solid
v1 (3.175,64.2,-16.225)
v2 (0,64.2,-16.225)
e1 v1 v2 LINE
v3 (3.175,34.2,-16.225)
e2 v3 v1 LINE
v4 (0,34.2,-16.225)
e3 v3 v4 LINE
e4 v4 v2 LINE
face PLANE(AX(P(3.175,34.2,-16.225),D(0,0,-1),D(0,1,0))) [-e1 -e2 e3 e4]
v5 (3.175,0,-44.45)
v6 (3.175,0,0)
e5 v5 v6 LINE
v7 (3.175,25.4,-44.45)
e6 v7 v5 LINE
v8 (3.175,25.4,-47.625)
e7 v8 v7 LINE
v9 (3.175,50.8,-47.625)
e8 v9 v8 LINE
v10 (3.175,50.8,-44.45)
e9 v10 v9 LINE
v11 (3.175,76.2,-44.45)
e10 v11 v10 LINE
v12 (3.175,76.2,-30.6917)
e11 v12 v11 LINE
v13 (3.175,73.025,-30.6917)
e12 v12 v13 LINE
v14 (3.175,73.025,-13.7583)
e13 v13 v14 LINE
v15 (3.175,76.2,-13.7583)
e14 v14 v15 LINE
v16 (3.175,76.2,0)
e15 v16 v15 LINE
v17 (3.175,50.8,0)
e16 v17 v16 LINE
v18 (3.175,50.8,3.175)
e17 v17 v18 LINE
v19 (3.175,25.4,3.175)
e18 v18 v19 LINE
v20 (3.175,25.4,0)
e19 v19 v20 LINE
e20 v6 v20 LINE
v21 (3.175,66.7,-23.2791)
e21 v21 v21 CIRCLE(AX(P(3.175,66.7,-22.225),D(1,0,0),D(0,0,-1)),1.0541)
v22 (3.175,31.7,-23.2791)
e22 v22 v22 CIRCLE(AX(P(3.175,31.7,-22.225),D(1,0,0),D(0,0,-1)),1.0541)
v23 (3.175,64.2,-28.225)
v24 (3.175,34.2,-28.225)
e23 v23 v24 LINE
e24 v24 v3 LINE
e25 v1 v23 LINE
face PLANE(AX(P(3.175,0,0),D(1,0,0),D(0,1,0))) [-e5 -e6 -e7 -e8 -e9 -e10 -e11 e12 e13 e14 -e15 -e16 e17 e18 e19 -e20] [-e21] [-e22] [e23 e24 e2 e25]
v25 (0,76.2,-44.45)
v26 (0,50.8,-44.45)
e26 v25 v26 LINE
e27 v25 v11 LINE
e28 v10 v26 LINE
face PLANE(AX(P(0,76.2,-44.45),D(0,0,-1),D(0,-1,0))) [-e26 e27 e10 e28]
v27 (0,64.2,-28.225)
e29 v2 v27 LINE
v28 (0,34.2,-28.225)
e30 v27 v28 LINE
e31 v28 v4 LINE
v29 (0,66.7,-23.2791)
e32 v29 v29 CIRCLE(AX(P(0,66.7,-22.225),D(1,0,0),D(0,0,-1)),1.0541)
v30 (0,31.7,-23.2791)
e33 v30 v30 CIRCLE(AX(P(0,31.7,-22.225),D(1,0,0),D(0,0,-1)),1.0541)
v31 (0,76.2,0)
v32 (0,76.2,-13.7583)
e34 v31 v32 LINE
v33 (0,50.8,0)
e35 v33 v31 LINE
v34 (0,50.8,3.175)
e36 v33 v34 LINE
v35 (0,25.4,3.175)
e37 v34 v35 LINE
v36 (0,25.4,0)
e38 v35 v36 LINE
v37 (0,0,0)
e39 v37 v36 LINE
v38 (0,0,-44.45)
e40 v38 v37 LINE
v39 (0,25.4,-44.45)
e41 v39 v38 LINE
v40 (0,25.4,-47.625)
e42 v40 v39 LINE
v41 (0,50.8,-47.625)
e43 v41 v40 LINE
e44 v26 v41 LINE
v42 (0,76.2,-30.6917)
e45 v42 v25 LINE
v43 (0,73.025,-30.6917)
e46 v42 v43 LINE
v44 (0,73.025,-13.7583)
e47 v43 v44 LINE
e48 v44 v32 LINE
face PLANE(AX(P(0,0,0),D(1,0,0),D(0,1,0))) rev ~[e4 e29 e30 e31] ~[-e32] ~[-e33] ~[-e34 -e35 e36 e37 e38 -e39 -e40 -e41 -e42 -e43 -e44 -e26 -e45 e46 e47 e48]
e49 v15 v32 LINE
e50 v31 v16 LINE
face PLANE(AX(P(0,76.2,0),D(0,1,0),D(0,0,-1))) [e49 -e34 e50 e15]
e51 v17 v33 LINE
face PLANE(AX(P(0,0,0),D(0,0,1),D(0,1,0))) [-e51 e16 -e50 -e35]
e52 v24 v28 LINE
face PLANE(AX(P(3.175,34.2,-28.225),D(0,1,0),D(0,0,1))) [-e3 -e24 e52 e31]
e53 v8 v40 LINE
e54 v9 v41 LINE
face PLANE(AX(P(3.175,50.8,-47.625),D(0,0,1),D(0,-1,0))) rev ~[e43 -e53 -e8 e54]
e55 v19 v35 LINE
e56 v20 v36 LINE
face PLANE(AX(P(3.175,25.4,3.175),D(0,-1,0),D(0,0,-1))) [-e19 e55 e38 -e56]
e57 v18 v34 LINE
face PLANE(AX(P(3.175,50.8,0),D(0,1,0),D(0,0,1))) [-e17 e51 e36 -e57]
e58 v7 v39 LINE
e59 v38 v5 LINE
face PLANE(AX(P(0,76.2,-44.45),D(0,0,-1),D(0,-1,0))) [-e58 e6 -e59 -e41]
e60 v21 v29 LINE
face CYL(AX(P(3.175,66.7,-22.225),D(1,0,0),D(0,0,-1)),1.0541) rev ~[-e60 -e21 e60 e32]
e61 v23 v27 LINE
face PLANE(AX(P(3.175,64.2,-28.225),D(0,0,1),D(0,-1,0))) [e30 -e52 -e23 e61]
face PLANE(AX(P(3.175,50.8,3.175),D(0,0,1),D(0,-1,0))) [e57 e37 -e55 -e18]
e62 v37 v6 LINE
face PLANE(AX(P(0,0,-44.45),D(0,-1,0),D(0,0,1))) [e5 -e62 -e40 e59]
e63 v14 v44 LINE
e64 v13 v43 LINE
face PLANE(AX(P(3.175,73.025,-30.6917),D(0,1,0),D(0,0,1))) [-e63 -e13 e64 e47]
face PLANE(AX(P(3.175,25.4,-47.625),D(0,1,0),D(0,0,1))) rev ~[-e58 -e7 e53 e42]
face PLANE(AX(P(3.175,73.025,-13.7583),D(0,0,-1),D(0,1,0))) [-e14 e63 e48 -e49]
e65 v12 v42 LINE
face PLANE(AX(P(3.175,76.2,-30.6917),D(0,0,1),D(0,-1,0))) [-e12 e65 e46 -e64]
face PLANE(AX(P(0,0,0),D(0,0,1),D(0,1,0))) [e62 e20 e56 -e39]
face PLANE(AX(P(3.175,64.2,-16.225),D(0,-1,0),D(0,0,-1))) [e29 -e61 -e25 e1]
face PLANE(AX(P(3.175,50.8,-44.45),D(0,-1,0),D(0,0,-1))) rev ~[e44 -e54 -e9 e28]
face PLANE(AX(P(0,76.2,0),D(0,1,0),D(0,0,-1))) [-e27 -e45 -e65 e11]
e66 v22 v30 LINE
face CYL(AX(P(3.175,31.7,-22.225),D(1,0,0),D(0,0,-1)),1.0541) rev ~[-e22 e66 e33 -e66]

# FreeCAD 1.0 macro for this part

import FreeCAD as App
import Part
import Sketcher
Q = App.Units.Quantity


def add_polygon(sketch, points):
    """Adds a closed chain of lines whose ends are joined by coincident constraints."""
    first, n = sketch.GeometryCount, len(points)
    for a, b in zip(points, points[1:] + points[:1]):
        sketch.addGeometry(Part.LineSegment(App.Vector(*a, 0), App.Vector(*b, 0)), False)
    for i in range(n):
        sketch.addConstraint(Sketcher.Constraint("Coincident", first + i, 2, first + (i + 1) % n, 1))

doc = App.newDocument("Part")
params = doc.addObject("Spreadsheet::Sheet", "Params")
for row, (alias, value) in enumerate([
    ("sketch1_width", "3 in"),
    ("sketch1_height", "1.75 in"),
    ("pad1_length", "0.125 in"),
    ("sketch2_width", "0.125 in"),
    ("pocket1_length", "0.125 in"),
    ("sketch3_width", "1 in"),
    ("sketch3_height", "0.125 in"),
    ("pad2_length", "0.125 in"),
    ("sketch4_diameter", "0.083 in"),
    ("pocket2_length", "0.125 in"),
], start=1):
    params.set(f"A{row}", alias)
    params.set(f"B{row}", "=" + value)
    params.setAlias(f"B{row}", alias)

body = doc.addObject("PartDesign::Body", "Body")

# Sketch on YZ plane
sketch1 = body.newObject("Sketcher::SketchObject", "Sketch")
sketch1.AttachmentSupport = (doc.getObject("YZ_Plane"), [""])
sketch1.MapMode = "FlatFace"
add_polygon(sketch1, [(76, 0), (0, 0), (0, -44), (76, -44)])  # lines 0-3
sketch1.addConstraint([
    Sketcher.Constraint("Horizontal", 0),
    Sketcher.Constraint("Vertical", 1),
    Sketcher.Constraint("Horizontal", 2),
    Sketcher.Constraint("Vertical", 3),
    Sketcher.Constraint("Coincident", 0, 2, -1, 1),
    Sketcher.Constraint("DistanceX", 0, 2, 0, 1, Q("3 in")),
    Sketcher.Constraint("DistanceY", 1, 2, 1, 1, Q("1.75 in")),
])
sketch1.setExpression("Constraints[9]", "Params.sketch1_width")
sketch1.setExpression("Constraints[10]", "Params.sketch1_height")
pad1 = body.newObject("PartDesign::Pad", "Pad")
pad1.Profile = sketch1
pad1.setExpression("Length", "Params.pad1_length")

# Sketch on YZ plane
sketch2 = body.newObject("Sketcher::SketchObject", "Sketch001")
sketch2.AttachmentSupport = (doc.getObject("YZ_Plane"), [""])
sketch2.MapMode = "FlatFace"
sketch2.AttachmentOffset = App.Placement(App.Vector(0, 0, 0.125 * 25.4), App.Rotation())
add_polygon(sketch2, [(73, -30.7), (76.2, -30.7), (76.2, -13.8), (73, -13.8)])  # lines 0-3
sketch2.addConstraint([
    Sketcher.Constraint("Horizontal", 0),
    Sketcher.Constraint("Vertical", 1),
    Sketcher.Constraint("Horizontal", 2),
    Sketcher.Constraint("Vertical", 3),
    Sketcher.Constraint("DistanceX", 0, 1, 0, 2, Q("0.125 in")),
    Sketcher.Constraint("DistanceX", -1, 1, 0, 2, Q("3 in")),
    Sketcher.Constraint("DistanceY", 1, 1, 1, 2, Q("16.9334 mm")),
    Sketcher.Constraint("DistanceY", 1, 2, -1, 1, Q("13.7583 mm")),
])
sketch2.setExpression("Constraints[8]", "Params.sketch2_width")
pocket1 = body.newObject("PartDesign::Pocket", "Pocket")
pocket1.Profile = sketch2
pocket1.setExpression("Length", "Params.pocket1_length")

# Sketch on YZ plane
sketch3 = body.newObject("Sketcher::SketchObject", "Sketch002")
sketch3.AttachmentSupport = (doc.getObject("YZ_Plane"), [""])
sketch3.MapMode = "FlatFace"
sketch3.AttachmentOffset = App.Placement(App.Vector(0, 0, 0.125 * 25.4), App.Rotation())
add_polygon(sketch3, [(50.8, -44.5), (25.4, -44.5), (25.4, -47.6), (50.8, -47.6)])  # lines 0-3
add_polygon(sketch3, [(25.4, 0), (50.8, 0), (50.8, 3.2), (25.4, 3.2)])  # lines 4-7
sketch3.addConstraint([
    Sketcher.Constraint("Horizontal", 0),
    Sketcher.Constraint("Vertical", 1),
    Sketcher.Constraint("Horizontal", 2),
    Sketcher.Constraint("Vertical", 3),
    Sketcher.Constraint("Horizontal", 4),
    Sketcher.Constraint("Vertical", 5),
    Sketcher.Constraint("Horizontal", 6),
    Sketcher.Constraint("Vertical", 7),
    Sketcher.Constraint("PointOnObject", 4, 2, -1),
    Sketcher.Constraint("Vertical", 3, 2, 4, 2),
    Sketcher.Constraint("Vertical", 1, 2, 6, 2),
    Sketcher.Constraint("Equal", 3, 5),
    Sketcher.Constraint("DistanceX", 0, 2, 0, 1, Q("1 in")),
    Sketcher.Constraint("DistanceX", -1, 1, 0, 2, Q("1 in")),
    Sketcher.Constraint("DistanceY", 1, 2, 1, 1, Q("0.125 in")),
    Sketcher.Constraint("DistanceY", 2, 2, 5, 2, Q("2 in")),
])
sketch3.setExpression("Constraints[20]", "Params.sketch3_width")
sketch3.setExpression("Constraints[22]", "Params.sketch3_height")
pad2 = body.newObject("PartDesign::Pad", "Pad001")
pad2.Profile = sketch3
pad2.setExpression("Length", "Params.pad2_length")
pad2.Reversed = True

# Sketch on YZ plane
sketch4 = body.newObject("Sketcher::SketchObject", "Sketch003")
sketch4.AttachmentSupport = (doc.getObject("YZ_Plane"), [""])
sketch4.MapMode = "FlatFace"
sketch4.AttachmentOffset = App.Placement(App.Vector(0, 0, 0.125 * 25.4), App.Rotation())
add_polygon(sketch4, [(64.2, -28.2), (64.2, -16.2), (34.2, -16.2), (34.2, -28.2)])  # lines 0-3
sketch4.addGeometry(Part.Circle(App.Vector(66.7, -22.2, 0), App.Vector(0, 0, 1), 1.1), False)  # 4
sketch4.addGeometry(Part.Circle(App.Vector(31.7, -22.2, 0), App.Vector(0, 0, 1), 1.1), False)  # 5
sketch4.addConstraint([
    Sketcher.Constraint("Vertical", 0),
    Sketcher.Constraint("Horizontal", 1),
    Sketcher.Constraint("Vertical", 2),
    Sketcher.Constraint("Horizontal", 3),
    Sketcher.Constraint("Equal", 4, 5),
    Sketcher.Constraint("Horizontal", 4, 3, 5, 3),
    Sketcher.Constraint("Diameter", 4, Q("0.083 in")),
    Sketcher.Constraint("DistanceX", 1, 2, 1, 1, Q("1.1811 in")),
    Sketcher.Constraint("DistanceY", 0, 1, 0, 2, Q("12 mm")),
    Sketcher.Constraint("DistanceX", 0, 2, 4, 3, Q("2.5 mm")),
    Sketcher.Constraint("DistanceY", 4, 3, 0, 2, Q("6 mm")),
    Sketcher.Constraint("DistanceX", 5, 3, 1, 2, Q("2.5 mm")),
    Sketcher.Constraint("DistanceY", 4, 3, -1, 1, Q("0.875 in")),
    Sketcher.Constraint("DistanceX", -1, 1, 4, 3, Q("66.7 mm")),
])
sketch4.setExpression("Constraints[10]", "Params.sketch4_diameter")
pocket2 = body.newObject("PartDesign::Pocket", "Pocket001")
pocket2.Profile = sketch4
pocket2.setExpression("Length", "Params.pocket2_length")

doc.recompute()
